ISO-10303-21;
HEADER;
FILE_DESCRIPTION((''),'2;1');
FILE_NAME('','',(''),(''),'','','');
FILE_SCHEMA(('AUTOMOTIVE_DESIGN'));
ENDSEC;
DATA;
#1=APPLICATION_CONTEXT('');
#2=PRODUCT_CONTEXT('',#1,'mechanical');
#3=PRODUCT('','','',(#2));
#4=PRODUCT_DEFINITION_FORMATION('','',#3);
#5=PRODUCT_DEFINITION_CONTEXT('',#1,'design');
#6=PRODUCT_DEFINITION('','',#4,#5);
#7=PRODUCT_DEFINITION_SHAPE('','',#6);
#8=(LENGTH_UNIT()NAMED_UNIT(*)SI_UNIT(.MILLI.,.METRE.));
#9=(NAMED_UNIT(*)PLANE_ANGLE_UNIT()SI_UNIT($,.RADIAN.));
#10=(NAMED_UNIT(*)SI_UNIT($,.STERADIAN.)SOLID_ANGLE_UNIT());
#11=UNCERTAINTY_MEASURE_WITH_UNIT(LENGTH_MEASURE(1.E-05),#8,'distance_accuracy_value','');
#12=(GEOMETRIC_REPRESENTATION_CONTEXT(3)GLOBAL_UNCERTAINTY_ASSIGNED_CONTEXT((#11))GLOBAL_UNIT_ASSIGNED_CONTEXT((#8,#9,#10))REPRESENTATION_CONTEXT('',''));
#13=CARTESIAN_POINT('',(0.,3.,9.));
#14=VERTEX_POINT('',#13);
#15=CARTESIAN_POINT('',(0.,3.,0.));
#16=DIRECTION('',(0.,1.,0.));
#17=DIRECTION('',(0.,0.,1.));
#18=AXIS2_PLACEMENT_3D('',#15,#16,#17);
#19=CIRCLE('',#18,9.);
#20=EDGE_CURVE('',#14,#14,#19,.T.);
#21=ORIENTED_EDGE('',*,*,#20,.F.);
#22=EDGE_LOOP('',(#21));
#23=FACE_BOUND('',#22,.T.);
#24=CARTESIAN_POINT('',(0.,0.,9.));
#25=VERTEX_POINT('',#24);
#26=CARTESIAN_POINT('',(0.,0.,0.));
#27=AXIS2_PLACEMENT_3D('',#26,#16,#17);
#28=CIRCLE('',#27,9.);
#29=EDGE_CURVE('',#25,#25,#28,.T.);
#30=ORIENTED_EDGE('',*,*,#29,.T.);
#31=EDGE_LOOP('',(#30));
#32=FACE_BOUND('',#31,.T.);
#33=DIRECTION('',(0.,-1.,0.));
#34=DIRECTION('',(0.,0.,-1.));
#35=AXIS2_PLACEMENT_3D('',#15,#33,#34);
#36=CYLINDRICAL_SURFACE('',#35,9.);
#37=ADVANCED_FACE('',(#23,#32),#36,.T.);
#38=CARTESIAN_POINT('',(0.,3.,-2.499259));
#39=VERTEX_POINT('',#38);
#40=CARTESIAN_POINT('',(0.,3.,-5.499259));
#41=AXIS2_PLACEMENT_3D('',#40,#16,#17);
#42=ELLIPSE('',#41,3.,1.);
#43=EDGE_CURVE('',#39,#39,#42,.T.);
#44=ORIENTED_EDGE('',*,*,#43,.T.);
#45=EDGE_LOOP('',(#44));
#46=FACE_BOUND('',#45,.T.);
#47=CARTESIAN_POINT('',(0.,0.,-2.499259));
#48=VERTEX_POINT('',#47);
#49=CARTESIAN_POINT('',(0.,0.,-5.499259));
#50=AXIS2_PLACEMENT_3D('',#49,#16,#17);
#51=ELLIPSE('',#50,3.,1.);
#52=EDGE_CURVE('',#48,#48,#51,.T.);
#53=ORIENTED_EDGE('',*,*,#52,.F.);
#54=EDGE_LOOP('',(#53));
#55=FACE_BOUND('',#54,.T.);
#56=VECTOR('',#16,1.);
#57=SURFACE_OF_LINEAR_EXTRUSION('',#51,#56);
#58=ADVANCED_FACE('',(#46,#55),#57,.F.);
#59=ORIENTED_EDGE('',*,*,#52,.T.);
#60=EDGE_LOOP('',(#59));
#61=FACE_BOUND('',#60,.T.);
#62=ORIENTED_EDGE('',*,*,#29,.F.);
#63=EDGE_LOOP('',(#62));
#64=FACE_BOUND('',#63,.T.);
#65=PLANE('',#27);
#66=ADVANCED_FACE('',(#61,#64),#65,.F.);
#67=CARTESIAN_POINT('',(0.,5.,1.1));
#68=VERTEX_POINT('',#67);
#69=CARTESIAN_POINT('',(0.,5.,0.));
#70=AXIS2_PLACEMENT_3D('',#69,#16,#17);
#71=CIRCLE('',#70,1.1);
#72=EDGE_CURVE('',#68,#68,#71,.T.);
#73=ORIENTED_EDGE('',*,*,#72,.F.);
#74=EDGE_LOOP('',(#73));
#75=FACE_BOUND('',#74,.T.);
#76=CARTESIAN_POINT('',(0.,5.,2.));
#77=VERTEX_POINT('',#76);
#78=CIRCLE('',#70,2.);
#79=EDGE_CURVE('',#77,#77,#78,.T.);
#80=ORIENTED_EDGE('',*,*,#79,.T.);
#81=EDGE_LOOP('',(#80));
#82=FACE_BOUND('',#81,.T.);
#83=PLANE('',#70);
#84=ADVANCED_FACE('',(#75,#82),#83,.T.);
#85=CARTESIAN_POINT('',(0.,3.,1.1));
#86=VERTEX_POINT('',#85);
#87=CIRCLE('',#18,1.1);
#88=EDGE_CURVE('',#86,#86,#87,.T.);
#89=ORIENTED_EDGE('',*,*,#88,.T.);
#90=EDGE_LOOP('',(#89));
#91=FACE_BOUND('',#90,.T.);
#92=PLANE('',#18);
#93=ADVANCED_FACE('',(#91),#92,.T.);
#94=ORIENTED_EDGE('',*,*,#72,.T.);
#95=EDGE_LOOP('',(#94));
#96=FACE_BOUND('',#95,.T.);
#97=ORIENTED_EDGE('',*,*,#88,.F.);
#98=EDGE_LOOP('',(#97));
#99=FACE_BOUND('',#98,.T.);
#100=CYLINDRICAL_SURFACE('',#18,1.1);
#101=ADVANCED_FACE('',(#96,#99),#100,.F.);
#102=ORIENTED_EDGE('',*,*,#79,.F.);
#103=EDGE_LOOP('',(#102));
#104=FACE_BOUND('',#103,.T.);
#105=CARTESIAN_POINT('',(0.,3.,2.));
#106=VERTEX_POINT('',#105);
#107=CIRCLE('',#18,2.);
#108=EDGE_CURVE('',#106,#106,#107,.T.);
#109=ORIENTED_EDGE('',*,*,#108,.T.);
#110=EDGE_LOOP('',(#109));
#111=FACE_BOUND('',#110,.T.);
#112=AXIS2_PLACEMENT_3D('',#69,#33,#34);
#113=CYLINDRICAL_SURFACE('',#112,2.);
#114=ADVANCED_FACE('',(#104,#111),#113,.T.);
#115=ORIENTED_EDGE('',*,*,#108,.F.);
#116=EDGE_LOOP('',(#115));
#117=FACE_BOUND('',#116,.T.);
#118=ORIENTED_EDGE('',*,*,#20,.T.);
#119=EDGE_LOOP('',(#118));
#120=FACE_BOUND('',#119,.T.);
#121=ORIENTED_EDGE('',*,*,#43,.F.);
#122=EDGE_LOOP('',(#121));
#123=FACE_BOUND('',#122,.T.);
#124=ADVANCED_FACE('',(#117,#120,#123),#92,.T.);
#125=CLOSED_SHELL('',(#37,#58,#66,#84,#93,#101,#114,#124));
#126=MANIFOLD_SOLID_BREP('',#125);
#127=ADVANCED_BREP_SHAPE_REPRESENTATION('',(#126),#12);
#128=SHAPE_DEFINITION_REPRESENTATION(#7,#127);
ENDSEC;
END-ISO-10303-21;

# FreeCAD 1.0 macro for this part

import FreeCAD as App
import Part
import Sketcher
Q = App.Units.Quantity

doc = App.newDocument("Part")
body = doc.addObject("PartDesign::Body", "Body")

# Sketch on XZ plane
sketch1 = body.newObject("Sketcher::SketchObject", "Sketch")
sketch1.AttachmentSupport = (doc.getObject("XZ_Plane"), [""])
sketch1.MapMode = "FlatFace"
sketch1.addGeometry(Part.Circle(App.Vector(0, 0, 0), App.Vector(0, 0, 1), 9), False)
sketch1.addConstraint(Sketcher.Constraint("Coincident", 0, 3, -1, 1))
sketch1.addConstraint(Sketcher.Constraint("Diameter", 0, Q("18 mm")))
pad1 = body.newObject("PartDesign::Pad", "Pad")
pad1.Profile = sketch1
pad1.Length = 3
pad1.Reversed = True

# Sketch on XZ plane
sketch2 = body.newObject("Sketcher::SketchObject", "Sketch001")
sketch2.AttachmentSupport = (doc.getObject("XZ_Plane"), [""])
sketch2.MapMode = "FlatFace"
sketch2.AttachmentOffset = App.Placement(App.Vector(0, 0, -3), App.Rotation())
sketch2.addGeometry(Part.Circle(App.Vector(0, 0, 0), App.Vector(0, 0, 1), 2), False)
sketch2.addConstraint(Sketcher.Constraint("Coincident", 0, 3, -1, 1))
sketch2.addConstraint(Sketcher.Constraint("Diameter", 0, Q("4 mm")))
pad2 = body.newObject("PartDesign::Pad", "Pad001")
pad2.Profile = sketch2
pad2.Length = 2
pad2.Reversed = True

# Sketch on XZ plane
sketch3 = body.newObject("Sketcher::SketchObject", "Sketch002")
sketch3.AttachmentSupport = (doc.getObject("XZ_Plane"), [""])
sketch3.MapMode = "FlatFace"
sketch3.AttachmentOffset = App.Placement(App.Vector(0, 0, -5), App.Rotation())
sketch3.addGeometry(Part.Circle(App.Vector(0, 0, 0), App.Vector(0, 0, 1), 1.1), False)
sketch3.addConstraint(Sketcher.Constraint("Coincident", 0, 3, -1, 1))
sketch3.addConstraint(Sketcher.Constraint("Diameter", 0, Q("2.2 mm")))
pocket1 = body.newObject("PartDesign::Pocket", "Pocket")
pocket1.Profile = sketch3
pocket1.Length = 2
pocket1.Reversed = True

# Sketch on XZ plane
sketch4 = body.newObject("Sketcher::SketchObject", "Sketch003")
sketch4.AttachmentSupport = (doc.getObject("XZ_Plane"), [""])
sketch4.MapMode = "FlatFace"
sketch4.AttachmentOffset = App.Placement(App.Vector(0, 0, -3), App.Rotation())
sketch4.addGeometry(Part.Ellipse(App.Vector(0, -8.499259, 0), App.Vector(1, -5.499259, 0), App.Vector(0, -5.499259, 0)), False)
sketch4.addConstraint(Sketcher.Constraint("Block", 0))
pocket2 = body.newObject("PartDesign::Pocket", "Pocket001")
pocket2.Profile = sketch4
pocket2.Length = 3
pocket2.Reversed = True

doc.recompute()
